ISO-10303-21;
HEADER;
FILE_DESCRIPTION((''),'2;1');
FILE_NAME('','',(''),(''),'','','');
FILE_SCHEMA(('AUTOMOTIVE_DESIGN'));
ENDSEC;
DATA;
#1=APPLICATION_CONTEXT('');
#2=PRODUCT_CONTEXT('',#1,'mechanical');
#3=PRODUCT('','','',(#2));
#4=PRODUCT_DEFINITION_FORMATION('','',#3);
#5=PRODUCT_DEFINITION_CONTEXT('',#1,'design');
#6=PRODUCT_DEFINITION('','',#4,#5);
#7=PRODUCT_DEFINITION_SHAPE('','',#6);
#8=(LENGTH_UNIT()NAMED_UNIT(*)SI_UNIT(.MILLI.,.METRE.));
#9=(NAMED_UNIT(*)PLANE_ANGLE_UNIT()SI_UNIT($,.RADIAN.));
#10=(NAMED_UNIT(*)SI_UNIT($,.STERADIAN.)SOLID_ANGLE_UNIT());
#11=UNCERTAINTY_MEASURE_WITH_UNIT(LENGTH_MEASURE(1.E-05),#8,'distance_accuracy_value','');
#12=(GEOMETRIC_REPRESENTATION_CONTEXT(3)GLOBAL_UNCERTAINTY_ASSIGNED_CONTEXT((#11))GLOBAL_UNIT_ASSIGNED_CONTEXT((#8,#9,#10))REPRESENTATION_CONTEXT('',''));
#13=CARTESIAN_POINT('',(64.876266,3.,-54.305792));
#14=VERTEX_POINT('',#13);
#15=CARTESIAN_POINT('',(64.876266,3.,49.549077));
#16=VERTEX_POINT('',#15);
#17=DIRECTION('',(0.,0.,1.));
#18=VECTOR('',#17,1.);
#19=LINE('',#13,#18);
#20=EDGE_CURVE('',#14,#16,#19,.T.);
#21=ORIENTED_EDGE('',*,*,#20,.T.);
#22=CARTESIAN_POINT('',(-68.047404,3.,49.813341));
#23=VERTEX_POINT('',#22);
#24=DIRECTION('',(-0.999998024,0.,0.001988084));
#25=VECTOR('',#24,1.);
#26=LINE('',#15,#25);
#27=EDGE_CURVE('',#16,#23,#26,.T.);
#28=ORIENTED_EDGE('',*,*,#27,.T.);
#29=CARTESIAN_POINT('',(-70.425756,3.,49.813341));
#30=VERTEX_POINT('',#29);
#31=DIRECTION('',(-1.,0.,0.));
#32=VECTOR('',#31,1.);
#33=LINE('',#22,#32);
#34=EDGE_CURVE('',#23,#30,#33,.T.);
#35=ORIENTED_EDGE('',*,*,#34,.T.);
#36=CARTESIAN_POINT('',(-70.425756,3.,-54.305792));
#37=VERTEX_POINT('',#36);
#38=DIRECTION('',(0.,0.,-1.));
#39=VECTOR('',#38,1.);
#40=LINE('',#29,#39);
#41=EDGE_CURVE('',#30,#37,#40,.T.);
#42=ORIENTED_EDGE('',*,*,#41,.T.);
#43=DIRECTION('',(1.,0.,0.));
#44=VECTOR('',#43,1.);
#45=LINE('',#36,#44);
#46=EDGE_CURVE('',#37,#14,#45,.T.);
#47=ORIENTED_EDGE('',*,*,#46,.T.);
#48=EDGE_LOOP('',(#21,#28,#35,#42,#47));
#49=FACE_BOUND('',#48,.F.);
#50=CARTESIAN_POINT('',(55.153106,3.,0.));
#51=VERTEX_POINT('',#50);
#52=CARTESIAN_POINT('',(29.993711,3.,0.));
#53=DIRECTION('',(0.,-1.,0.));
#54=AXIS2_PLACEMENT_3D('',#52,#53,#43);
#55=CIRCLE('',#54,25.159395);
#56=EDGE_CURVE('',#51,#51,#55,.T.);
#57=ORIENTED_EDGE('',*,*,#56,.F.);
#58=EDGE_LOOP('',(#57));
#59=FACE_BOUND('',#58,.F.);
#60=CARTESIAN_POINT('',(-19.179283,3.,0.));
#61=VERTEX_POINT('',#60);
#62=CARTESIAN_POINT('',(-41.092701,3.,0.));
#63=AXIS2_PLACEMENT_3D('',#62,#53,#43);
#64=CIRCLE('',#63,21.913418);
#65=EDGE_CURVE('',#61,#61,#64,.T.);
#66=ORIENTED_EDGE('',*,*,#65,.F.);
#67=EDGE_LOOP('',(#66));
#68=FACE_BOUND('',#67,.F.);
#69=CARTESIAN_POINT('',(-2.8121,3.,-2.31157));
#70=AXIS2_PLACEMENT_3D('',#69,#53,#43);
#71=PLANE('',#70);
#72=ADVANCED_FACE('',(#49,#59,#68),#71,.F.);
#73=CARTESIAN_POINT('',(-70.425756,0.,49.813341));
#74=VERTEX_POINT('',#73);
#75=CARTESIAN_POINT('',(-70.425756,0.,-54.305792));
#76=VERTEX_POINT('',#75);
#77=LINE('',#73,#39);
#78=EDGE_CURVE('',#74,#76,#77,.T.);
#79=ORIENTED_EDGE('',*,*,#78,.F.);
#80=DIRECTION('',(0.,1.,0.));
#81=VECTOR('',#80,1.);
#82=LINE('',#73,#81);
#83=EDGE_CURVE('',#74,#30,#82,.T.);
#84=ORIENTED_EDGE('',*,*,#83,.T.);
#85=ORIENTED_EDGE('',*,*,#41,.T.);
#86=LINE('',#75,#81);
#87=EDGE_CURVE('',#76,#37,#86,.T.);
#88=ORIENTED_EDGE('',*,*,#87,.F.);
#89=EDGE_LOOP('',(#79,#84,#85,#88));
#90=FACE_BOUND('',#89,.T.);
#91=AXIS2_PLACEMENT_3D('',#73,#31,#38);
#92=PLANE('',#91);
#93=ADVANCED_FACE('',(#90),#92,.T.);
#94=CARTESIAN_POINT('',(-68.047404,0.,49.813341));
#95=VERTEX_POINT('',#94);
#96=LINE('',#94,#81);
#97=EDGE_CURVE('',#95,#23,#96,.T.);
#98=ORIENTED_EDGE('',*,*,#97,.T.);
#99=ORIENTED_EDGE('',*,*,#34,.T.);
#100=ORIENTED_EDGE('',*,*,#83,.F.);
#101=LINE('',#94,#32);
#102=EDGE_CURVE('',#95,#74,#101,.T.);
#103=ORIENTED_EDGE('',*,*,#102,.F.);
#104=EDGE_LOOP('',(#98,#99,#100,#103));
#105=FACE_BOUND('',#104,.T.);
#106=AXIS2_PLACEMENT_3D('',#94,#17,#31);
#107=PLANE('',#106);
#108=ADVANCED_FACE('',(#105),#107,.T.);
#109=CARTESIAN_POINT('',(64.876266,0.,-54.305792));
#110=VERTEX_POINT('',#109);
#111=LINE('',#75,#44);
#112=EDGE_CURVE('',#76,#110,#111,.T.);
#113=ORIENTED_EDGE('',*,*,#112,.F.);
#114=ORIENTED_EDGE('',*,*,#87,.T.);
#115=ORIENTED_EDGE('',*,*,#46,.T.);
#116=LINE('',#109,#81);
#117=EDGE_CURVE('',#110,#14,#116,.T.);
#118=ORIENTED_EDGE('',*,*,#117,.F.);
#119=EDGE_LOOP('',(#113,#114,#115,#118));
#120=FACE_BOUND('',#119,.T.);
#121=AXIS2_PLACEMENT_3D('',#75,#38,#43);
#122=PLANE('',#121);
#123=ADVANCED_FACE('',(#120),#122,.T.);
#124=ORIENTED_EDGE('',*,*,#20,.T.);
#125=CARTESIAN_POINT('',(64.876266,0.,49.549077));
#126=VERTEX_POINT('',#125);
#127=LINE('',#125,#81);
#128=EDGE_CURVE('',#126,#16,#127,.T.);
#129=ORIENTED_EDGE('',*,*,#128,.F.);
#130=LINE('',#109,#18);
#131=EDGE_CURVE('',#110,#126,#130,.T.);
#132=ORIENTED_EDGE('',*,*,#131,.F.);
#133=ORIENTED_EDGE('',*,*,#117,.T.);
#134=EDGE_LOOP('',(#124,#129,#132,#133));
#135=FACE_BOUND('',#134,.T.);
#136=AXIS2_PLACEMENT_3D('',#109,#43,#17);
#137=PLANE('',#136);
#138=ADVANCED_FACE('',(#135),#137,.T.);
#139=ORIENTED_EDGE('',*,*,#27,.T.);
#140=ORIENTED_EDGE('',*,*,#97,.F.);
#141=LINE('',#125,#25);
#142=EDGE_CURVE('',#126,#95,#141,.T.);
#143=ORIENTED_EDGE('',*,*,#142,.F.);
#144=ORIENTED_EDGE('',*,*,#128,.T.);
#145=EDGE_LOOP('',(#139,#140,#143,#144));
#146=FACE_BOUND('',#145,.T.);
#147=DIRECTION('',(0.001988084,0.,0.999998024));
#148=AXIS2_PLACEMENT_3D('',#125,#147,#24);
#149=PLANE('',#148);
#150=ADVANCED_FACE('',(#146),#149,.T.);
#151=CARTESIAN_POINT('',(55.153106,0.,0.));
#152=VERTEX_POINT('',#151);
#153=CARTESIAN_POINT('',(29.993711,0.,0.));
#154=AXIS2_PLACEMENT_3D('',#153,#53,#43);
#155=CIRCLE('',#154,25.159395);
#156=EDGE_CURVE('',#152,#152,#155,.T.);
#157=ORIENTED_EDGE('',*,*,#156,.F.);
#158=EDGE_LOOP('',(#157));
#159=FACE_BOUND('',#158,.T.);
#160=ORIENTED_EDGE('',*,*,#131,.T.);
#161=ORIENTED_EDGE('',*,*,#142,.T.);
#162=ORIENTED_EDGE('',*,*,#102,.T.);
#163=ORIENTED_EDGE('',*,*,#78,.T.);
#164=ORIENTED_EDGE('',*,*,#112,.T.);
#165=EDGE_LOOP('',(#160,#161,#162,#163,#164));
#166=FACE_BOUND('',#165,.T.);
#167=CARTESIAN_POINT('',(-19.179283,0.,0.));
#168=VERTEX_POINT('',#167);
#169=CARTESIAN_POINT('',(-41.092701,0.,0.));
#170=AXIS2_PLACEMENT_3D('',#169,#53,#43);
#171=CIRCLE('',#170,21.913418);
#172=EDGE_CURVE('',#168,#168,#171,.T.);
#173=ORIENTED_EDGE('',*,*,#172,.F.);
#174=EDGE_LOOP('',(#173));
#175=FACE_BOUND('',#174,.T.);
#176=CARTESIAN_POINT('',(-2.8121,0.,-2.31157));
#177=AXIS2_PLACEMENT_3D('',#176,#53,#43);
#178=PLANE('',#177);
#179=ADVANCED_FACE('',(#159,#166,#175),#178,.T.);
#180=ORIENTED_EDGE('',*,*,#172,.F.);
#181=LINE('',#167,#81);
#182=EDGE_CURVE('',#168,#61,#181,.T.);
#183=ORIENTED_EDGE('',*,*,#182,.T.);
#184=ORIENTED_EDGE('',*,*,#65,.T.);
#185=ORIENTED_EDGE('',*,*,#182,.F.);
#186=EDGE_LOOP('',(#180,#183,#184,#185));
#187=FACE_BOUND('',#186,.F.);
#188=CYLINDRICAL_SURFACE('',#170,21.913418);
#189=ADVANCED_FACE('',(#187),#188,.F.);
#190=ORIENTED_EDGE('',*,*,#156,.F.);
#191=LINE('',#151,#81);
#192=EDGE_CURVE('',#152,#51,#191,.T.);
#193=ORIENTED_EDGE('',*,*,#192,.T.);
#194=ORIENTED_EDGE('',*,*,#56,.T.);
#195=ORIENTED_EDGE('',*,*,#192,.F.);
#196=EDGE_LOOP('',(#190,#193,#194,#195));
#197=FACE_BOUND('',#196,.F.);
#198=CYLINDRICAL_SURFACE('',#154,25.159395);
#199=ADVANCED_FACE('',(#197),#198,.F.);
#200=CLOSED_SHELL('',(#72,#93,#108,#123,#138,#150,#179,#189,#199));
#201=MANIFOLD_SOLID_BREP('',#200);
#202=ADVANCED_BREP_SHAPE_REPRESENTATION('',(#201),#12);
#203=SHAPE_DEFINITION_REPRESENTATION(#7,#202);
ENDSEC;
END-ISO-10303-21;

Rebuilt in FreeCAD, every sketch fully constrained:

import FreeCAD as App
import Part
import Sketcher
Q = App.Units.Quantity


def add_polygon(sketch, points):
    """Adds a closed chain of lines whose ends are joined by coincident constraints."""
    first, n = sketch.GeometryCount, len(points)
    for a, b in zip(points, points[1:] + points[:1]):
        sketch.addGeometry(Part.LineSegment(App.Vector(*a, 0), App.Vector(*b, 0)), False)
    for i in range(n):
        sketch.addConstraint(Sketcher.Constraint("Coincident", first + i, 2, first + (i + 1) % n, 1))

doc = App.newDocument("Part")
params = doc.addObject("Spreadsheet::Sheet", "Params")
for row, (alias, value) in enumerate([
    ("pad1_length", "3 mm"),
], start=1):
    params.set(f"A{row}", alias)
    params.set(f"B{row}", "=" + value)
    params.setAlias(f"B{row}", alias)

body = doc.addObject("PartDesign::Body", "Body")

# Sketch on XZ plane
sketch1 = doc.addObject("Sketcher::SketchObject", "Sketch")
body.addObject(sketch1)
sketch1.AttachmentSupport = (doc.XZ_Plane, [""])
sketch1.MapMode = "FlatFace"
add_polygon(sketch1, [(-68.047404, 49.813341), (-70.425756, 49.813341), (-70.425756, -54.305792), (64.876266, -54.305792), (64.876266, 49.549077)])  # lines 0-4
sketch1.addGeometry(Part.Circle(App.Vector(-41.092701, 0, 0), App.Vector(0, 0, 1), 21.913418), False)  # 5
sketch1.addGeometry(Part.Circle(App.Vector(29.993711, 0, 0), App.Vector(0, 0, 1), 25.159395), False)  # 6
sketch1.addConstraint(Sketcher.Constraint("Horizontal", 0))
sketch1.addConstraint(Sketcher.Constraint("Vertical", 1))
sketch1.addConstraint(Sketcher.Constraint("Horizontal", 2))
sketch1.addConstraint(Sketcher.Constraint("Vertical", 3))
sketch1.addConstraint(Sketcher.Constraint("PointOnObject", 5, 3, -1))
sketch1.addConstraint(Sketcher.Constraint("PointOnObject", 6, 3, -1))
sketch1.addConstraint(Sketcher.Constraint("Diameter", 6, Q("50.31879 mm")))
sketch1.addConstraint(Sketcher.Constraint("Diameter", 5, Q("43.826836 mm")))
sketch1.addConstraint(Sketcher.Constraint("DistanceY", 3, 1, 3, 2, Q("103.854869 mm")))
sketch1.addConstraint(Sketcher.Constraint("DistanceX", 5, 3, -1, 1, Q("41.092701 mm")))
sketch1.addConstraint(Sketcher.Constraint("DistanceX", 0, 2, 0, 1, Q("2.378352 mm")))
sketch1.addConstraint(Sketcher.Constraint("DistanceX", 2, 1, 2, 2, Q("135.302022 mm")))
sketch1.addConstraint(Sketcher.Constraint("DistanceY", 1, 2, 1, 1, Q("104.119133 mm")))
sketch1.addConstraint(Sketcher.Constraint("DistanceX", -1, 1, 6, 3, Q("29.993711 mm")))
sketch1.addConstraint(Sketcher.Constraint("DistanceY", -1, 1, 0, 2, Q("49.813341 mm")))
sketch1.addConstraint(Sketcher.Constraint("DistanceX", 0, 2, -1, 1, Q("70.425756 mm")))
pad1 = doc.addObject("PartDesign::Pad", "Pad")
body.addObject(pad1)
pad1.Profile = sketch1
pad1.setExpression("Length", "Params.pad1_length")
pad1.Reversed = True

doc.recompute()
